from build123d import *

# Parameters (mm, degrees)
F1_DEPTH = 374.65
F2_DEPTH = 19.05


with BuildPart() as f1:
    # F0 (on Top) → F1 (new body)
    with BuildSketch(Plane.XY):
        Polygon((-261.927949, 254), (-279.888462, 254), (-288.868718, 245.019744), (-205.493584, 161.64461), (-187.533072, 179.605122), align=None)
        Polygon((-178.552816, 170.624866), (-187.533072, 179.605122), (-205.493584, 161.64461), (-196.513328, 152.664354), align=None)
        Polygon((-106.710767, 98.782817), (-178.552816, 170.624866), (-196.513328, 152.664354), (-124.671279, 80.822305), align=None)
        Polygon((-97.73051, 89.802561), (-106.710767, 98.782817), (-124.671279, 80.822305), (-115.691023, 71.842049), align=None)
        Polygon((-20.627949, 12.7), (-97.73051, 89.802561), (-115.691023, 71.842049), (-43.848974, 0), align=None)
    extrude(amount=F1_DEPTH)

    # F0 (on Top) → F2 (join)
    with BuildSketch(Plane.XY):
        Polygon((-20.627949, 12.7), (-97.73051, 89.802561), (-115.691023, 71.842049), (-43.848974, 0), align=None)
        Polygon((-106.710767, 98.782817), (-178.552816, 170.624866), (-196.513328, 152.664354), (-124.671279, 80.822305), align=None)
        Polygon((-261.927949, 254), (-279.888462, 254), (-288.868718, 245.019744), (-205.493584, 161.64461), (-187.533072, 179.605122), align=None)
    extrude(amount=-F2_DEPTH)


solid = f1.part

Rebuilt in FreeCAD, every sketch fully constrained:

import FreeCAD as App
import Part
import Sketcher
Q = App.Units.Quantity

doc = App.newDocument("Part")
body = doc.addObject("PartDesign::Body", "Body")

sketch1 = body.newObject("Sketcher::SketchObject", "Sketch")
sketch1.AttachmentSupport = (doc.getObject("XY_Plane"), [""])
sketch1.MapMode = "FlatFace"
sketch1.addGeometry(Part.LineSegment(App.Vector(-262, 254, 0), App.Vector(-280, 254, 0)), False)
sketch1.addGeometry(Part.LineSegment(App.Vector(-280, 254, 0), App.Vector(-289, 245, 0)), False)
sketch1.addGeometry(Part.LineSegment(App.Vector(-289, 245, 0), App.Vector(-44, 0, 0)), False)
sketch1.addGeometry(Part.LineSegment(App.Vector(-44, 0, 0), App.Vector(-21, 13, 0)), False)
sketch1.addGeometry(Part.LineSegment(App.Vector(-21, 13, 0), App.Vector(-98, 90, 0)), False)
sketch1.addGeometry(Part.LineSegment(App.Vector(-98, 90, 0), App.Vector(-107, 99, 0)), False)
sketch1.addGeometry(Part.LineSegment(App.Vector(-107, 99, 0), App.Vector(-188, 180, 0)), False)
sketch1.addGeometry(Part.LineSegment(App.Vector(-188, 180, 0), App.Vector(-262, 254, 0)), False)
sketch1.addConstraint(Sketcher.Constraint("Coincident", 0, 2, 1, 1))
sketch1.addConstraint(Sketcher.Constraint("Coincident", 1, 2, 2, 1))
sketch1.addConstraint(Sketcher.Constraint("Coincident", 2, 2, 3, 1))
sketch1.addConstraint(Sketcher.Constraint("Coincident", 3, 2, 4, 1))
sketch1.addConstraint(Sketcher.Constraint("Coincident", 4, 2, 5, 1))
sketch1.addConstraint(Sketcher.Constraint("Coincident", 5, 2, 6, 1))
sketch1.addConstraint(Sketcher.Constraint("Coincident", 6, 2, 7, 1))
sketch1.addConstraint(Sketcher.Constraint("Coincident", 7, 2, 0, 1))
sketch1.addConstraint(Sketcher.Constraint("Horizontal", 0))
sketch1.addConstraint(Sketcher.Constraint("PointOnObject", 2, 2, -1))
sketch1.addConstraint(Sketcher.Constraint("Perpendicular", 1, 2))
sketch1.addConstraint(Sketcher.Constraint("Parallel", 2, 4))
sketch1.addConstraint(Sketcher.Constraint("Parallel", 4, 5))
sketch1.addConstraint(Sketcher.Constraint("Parallel", 5, 6))
sketch1.addConstraint(Sketcher.Constraint("Parallel", 6, 7))
sketch1.addConstraint(Sketcher.Constraint("Equal", 1, 5))
sketch1.addConstraint(Sketcher.Constraint("DistanceY", -1, 1, 0, 2, Q("10 in")))
sketch1.addConstraint(Sketcher.Constraint("Angle", 1, Q("-135 deg")))
sketch1.addConstraint(Sketcher.Constraint("Distance", 1, Q("0.5 in")))
sketch1.addConstraint(Sketcher.Constraint("Distance", 6, Q("4.5 in")))
sketch1.addConstraint(Sketcher.Constraint("DistanceY", -1, 1, 3, 2, Q("0.5 in")))
sketch1.addConstraint(Sketcher.Constraint("DistanceX", 6, 2, 2, 2, Q("143.684098 mm")))
sketch1.addConstraint(Sketcher.Constraint("DistanceX", 0, 2, 0, 1, Q("17.960513 mm")))
sketch1.addConstraint(Sketcher.Constraint("DistanceX", 0, 2, -1, 1, Q("279.888462 mm")))
pad1 = body.newObject("PartDesign::Pad", "Pad")
pad1.Profile = sketch1
pad1.Length = Q("14.75 in")

sketch2 = body.newObject("Sketcher::SketchObject", "Sketch001")
sketch2.AttachmentSupport = (doc.getObject("XY_Plane"), [""])
sketch2.MapMode = "FlatFace"
sketch2.addGeometry(Part.LineSegment(App.Vector(-21, 13, 0), App.Vector(-98, 90, 0)), False)
sketch2.addGeometry(Part.LineSegment(App.Vector(-98, 90, 0), App.Vector(-116, 72, 0)), False)
sketch2.addGeometry(Part.LineSegment(App.Vector(-116, 72, 0), App.Vector(-44, 0, 0)), False)
sketch2.addGeometry(Part.LineSegment(App.Vector(-44, 0, 0), App.Vector(-21, 13, 0)), False)
sketch2.addGeometry(Part.LineSegment(App.Vector(-107, 99, 0), App.Vector(-179, 171, 0)), False)
sketch2.addGeometry(Part.LineSegment(App.Vector(-179, 171, 0), App.Vector(-197, 153, 0)), False)
sketch2.addGeometry(Part.LineSegment(App.Vector(-197, 153, 0), App.Vector(-125, 81, 0)), False)
sketch2.addGeometry(Part.LineSegment(App.Vector(-125, 81, 0), App.Vector(-107, 99, 0)), False)
sketch2.addGeometry(Part.LineSegment(App.Vector(-262, 254, 0), App.Vector(-280, 254, 0)), False)
sketch2.addGeometry(Part.LineSegment(App.Vector(-280, 254, 0), App.Vector(-289, 245, 0)), False)
sketch2.addGeometry(Part.LineSegment(App.Vector(-289, 245, 0), App.Vector(-205, 162, 0)), False)
sketch2.addGeometry(Part.LineSegment(App.Vector(-205, 162, 0), App.Vector(-188, 180, 0)), False)
sketch2.addGeometry(Part.LineSegment(App.Vector(-188, 180, 0), App.Vector(-262, 254, 0)), False)
sketch2.addConstraint(Sketcher.Constraint("Coincident", 0, 2, 1, 1))
sketch2.addConstraint(Sketcher.Constraint("Coincident", 1, 2, 2, 1))
sketch2.addConstraint(Sketcher.Constraint("Coincident", 2, 2, 3, 1))
sketch2.addConstraint(Sketcher.Constraint("Coincident", 3, 2, 0, 1))
sketch2.addConstraint(Sketcher.Constraint("Coincident", 4, 2, 5, 1))
sketch2.addConstraint(Sketcher.Constraint("Coincident", 5, 2, 6, 1))
sketch2.addConstraint(Sketcher.Constraint("Coincident", 6, 2, 7, 1))
sketch2.addConstraint(Sketcher.Constraint("Coincident", 7, 2, 4, 1))
sketch2.addConstraint(Sketcher.Constraint("Coincident", 8, 2, 9, 1))
sketch2.addConstraint(Sketcher.Constraint("Coincident", 9, 2, 10, 1))
sketch2.addConstraint(Sketcher.Constraint("Coincident", 10, 2, 11, 1))
sketch2.addConstraint(Sketcher.Constraint("Coincident", 11, 2, 12, 1))
sketch2.addConstraint(Sketcher.Constraint("Coincident", 12, 2, 8, 1))
sketch2.addConstraint(Sketcher.Constraint("Horizontal", 8))
sketch2.addConstraint(Sketcher.Constraint("PointOnObject", 2, 2, -1))
sketch2.addConstraint(Sketcher.Constraint("Perpendicular", 0, 1))
sketch2.addConstraint(Sketcher.Constraint("Perpendicular", 1, 2))
sketch2.addConstraint(Sketcher.Constraint("Parallel", 2, 4))
sketch2.addConstraint(Sketcher.Constraint("Perpendicular", 4, 5))
sketch2.addConstraint(Sketcher.Constraint("Perpendicular", 5, 6))
sketch2.addConstraint(Sketcher.Constraint("Perpendicular", 6, 7))
sketch2.addConstraint(Sketcher.Constraint("Parallel", 7, 9))
sketch2.addConstraint(Sketcher.Constraint("Perpendicular", 9, 10))
sketch2.addConstraint(Sketcher.Constraint("Perpendicular", 10, 11))
sketch2.addConstraint(Sketcher.Constraint("Perpendicular", 11, 12))
sketch2.addConstraint(Sketcher.Constraint("Equal", 2, 4))
sketch2.addConstraint(Sketcher.Constraint("Equal", 1, 5))
sketch2.addConstraint(Sketcher.Constraint("Equal", 7, 11))
sketch2.addConstraint(Sketcher.Constraint("Distance", 1, Q("1 in")))
sketch2.addConstraint(Sketcher.Constraint("Distance", 2, Q("4 in")))
sketch2.addConstraint(Sketcher.Constraint("DistanceY", -1, 1, 8, 2, Q("10 in")))
sketch2.addConstraint(Sketcher.Constraint("Angle", 0, Q("135 deg")))
sketch2.addConstraint(Sketcher.Constraint("Distance", 9, Q("0.5 in")))
sketch2.addConstraint(Sketcher.Constraint("DistanceY", -1, 1, 3, 2, Q("0.5 in")))
sketch2.addConstraint(Sketcher.Constraint("DistanceX", 9, 2, 4, 2, Q("110.315902 mm")))
sketch2.addConstraint(Sketcher.Constraint("DistanceX", 0, 2, -1, 1, Q("97.73051 mm")))
sketch2.addConstraint(Sketcher.Constraint("DistanceX", 5, 2, -1, 1, Q("196.513328 mm")))
sketch2.addConstraint(Sketcher.Constraint("DistanceY", -1, 1, 10, 2, Q("161.64461 mm")))
sketch2.addConstraint(Sketcher.Constraint("DistanceY", 5, 2, 9, 2, Q("92.35539 mm")))
pad2 = body.newObject("PartDesign::Pad", "Pad001")
pad2.Profile = sketch2
pad2.Length = Q("0.75 in")
pad2.Reversed = True

doc.recompute()
